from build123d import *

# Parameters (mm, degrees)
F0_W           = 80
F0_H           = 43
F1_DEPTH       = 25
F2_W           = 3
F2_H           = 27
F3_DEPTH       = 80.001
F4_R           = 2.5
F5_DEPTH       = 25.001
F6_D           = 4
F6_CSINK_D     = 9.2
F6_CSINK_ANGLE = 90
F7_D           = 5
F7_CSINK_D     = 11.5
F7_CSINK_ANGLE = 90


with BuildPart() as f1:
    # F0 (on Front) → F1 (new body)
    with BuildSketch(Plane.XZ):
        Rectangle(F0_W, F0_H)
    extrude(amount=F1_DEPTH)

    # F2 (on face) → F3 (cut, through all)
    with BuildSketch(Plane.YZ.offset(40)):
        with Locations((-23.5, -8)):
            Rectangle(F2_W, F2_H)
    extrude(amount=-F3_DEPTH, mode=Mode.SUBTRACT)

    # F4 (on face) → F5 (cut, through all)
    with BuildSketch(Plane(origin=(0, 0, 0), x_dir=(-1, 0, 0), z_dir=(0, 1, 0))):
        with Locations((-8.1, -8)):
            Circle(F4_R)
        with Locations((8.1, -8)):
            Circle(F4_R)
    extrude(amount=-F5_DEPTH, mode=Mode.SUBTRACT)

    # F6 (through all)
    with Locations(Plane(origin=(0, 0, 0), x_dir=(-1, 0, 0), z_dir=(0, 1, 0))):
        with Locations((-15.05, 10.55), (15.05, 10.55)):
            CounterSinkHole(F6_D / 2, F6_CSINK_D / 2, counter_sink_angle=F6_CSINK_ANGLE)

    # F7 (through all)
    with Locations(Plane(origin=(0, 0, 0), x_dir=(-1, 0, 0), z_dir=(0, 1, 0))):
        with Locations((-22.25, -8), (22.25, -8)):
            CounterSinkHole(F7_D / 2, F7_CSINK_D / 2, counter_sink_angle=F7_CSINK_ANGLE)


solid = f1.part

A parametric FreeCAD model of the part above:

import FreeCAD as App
import Part
import Sketcher
Q = App.Units.Quantity

doc = App.newDocument("Part")
params = doc.addObject("Spreadsheet::Sheet", "Params")
for row, (alias, value) in enumerate([
    ("sketch1_width", "80 mm"),
    ("sketch1_height", "43 mm"),
    ("pad1_length", "25 mm"),
    ("sketch2_width", "3 mm"),
    ("sketch2_height", "27 mm"),
    ("sketch3_diameter", "5 mm"),
    ("sketch4_diameter", "4 mm"),
    ("hole_diameter", "4 mm"),
    ("hole_csink_diameter", "9.2 mm"),
    ("sketch5_diameter", "5 mm"),
    ("hole2_diameter", "5 mm"),
    ("hole2_csink_diameter", "11.5 mm"),
], start=1):
    params.set(f"A{row}", alias)
    params.set(f"B{row}", "=" + value)
    params.setAlias(f"B{row}", alias)

body = doc.addObject("PartDesign::Body", "Body")

sketch1 = body.newObject("Sketcher::SketchObject", "Sketch")
sketch1.AttachmentSupport = (doc.getObject("XZ_Plane"), [""])
sketch1.MapMode = "FlatFace"
sketch1.addGeometry([
    Part.LineSegment(App.Vector(-40, 21.5, 0), App.Vector(-40, -21.5, 0)),
    Part.LineSegment(App.Vector(-40, -21.5, 0), App.Vector(40, -21.5, 0)),
    Part.LineSegment(App.Vector(40, -21.5, 0), App.Vector(40, 21.5, 0)),
    Part.LineSegment(App.Vector(40, 21.5, 0), App.Vector(-40, 21.5, 0)),
], False)
sketch1.addConstraint([
    Sketcher.Constraint("Coincident", 0, 2, 1, 1),
    Sketcher.Constraint("Coincident", 1, 2, 2, 1),
    Sketcher.Constraint("Coincident", 2, 2, 3, 1),
    Sketcher.Constraint("Coincident", 3, 2, 0, 1),
    Sketcher.Constraint("Vertical", 0),
    Sketcher.Constraint("Horizontal", 1),
    Sketcher.Constraint("Vertical", 2),
    Sketcher.Constraint("Horizontal", 3),
    Sketcher.Constraint("Symmetric", 0, 2, 2, 2, -1, 1),
    Sketcher.Constraint("DistanceX", 1, 1, 1, 2, Q("80 mm")),
    Sketcher.Constraint("DistanceY", 0, 2, 0, 1, Q("43 mm")),
])
sketch1.setExpression("Constraints[9]", "Params.sketch1_width")
sketch1.setExpression("Constraints[10]", "Params.sketch1_height")
pad1 = body.newObject("PartDesign::Pad", "Pad")
pad1.Profile = sketch1
pad1.setExpression("Length", "Params.pad1_length")

sketch2 = body.newObject("Sketcher::SketchObject", "Sketch001")
sketch2.AttachmentSupport = (doc.getObject("YZ_Plane"), [""])
sketch2.MapMode = "FlatFace"
sketch2.AttachmentOffset = App.Placement(App.Vector(0, 0, 40), App.Rotation())
sketch2.addGeometry([
    Part.LineSegment(App.Vector(-25, 5.5, 0), App.Vector(-25, -21.5, 0)),
    Part.LineSegment(App.Vector(-25, -21.5, 0), App.Vector(-22, -21.5, 0)),
    Part.LineSegment(App.Vector(-22, -21.5, 0), App.Vector(-22, 5.5, 0)),
    Part.LineSegment(App.Vector(-22, 5.5, 0), App.Vector(-25, 5.5, 0)),
], False)
sketch2.addConstraint([
    Sketcher.Constraint("Coincident", 0, 2, 1, 1),
    Sketcher.Constraint("Coincident", 1, 2, 2, 1),
    Sketcher.Constraint("Coincident", 2, 2, 3, 1),
    Sketcher.Constraint("Coincident", 3, 2, 0, 1),
    Sketcher.Constraint("Vertical", 0),
    Sketcher.Constraint("Horizontal", 1),
    Sketcher.Constraint("Vertical", 2),
    Sketcher.Constraint("Horizontal", 3),
    Sketcher.Constraint("DistanceX", 1, 1, 1, 2, Q("3 mm")),
    Sketcher.Constraint("DistanceY", 0, 2, 0, 1, Q("27 mm")),
    Sketcher.Constraint("DistanceX", 0, 2, -1, 1, Q("25 mm")),
    Sketcher.Constraint("DistanceY", 0, 2, -1, 1, Q("21.5 mm")),
])
sketch2.setExpression("Constraints[8]", "Params.sketch2_width")
sketch2.setExpression("Constraints[9]", "Params.sketch2_height")
pocket1 = body.newObject("PartDesign::Pocket", "Pocket")
pocket1.Profile = sketch2
pocket1.Type = "ThroughAll"

sketch3 = body.newObject("Sketcher::SketchObject", "Sketch002")
sketch3.AttachmentSupport = (doc.getObject("XZ_Plane"), [""])
sketch3.MapMode = "FlatFace"
sketch3.addGeometry([
    Part.Circle(App.Vector(8.1, -8, 0), App.Vector(0, 0, 1), 2.5),
    Part.Circle(App.Vector(-8.1, -8, 0), App.Vector(0, 0, 1), 2.5),
], False)
sketch3.addConstraint([
    Sketcher.Constraint("Equal", 0, 1),
    Sketcher.Constraint("Symmetric", 0, 3, 1, 3, -2),
    Sketcher.Constraint("Diameter", 0, Q("5 mm")),
    Sketcher.Constraint("DistanceY", 0, 3, -1, 1, Q("8 mm")),
    Sketcher.Constraint("DistanceX", -1, 1, 0, 3, Q("8.1 mm")),
])
sketch3.setExpression("Constraints[2]", "Params.sketch3_diameter")
pocket2 = body.newObject("PartDesign::Pocket", "Pocket001")
pocket2.Profile = sketch3
pocket2.Type = "ThroughAll"
pocket2.Reversed = True

sketch4 = body.newObject("Sketcher::SketchObject", "Sketch003")
sketch4.AttachmentSupport = (doc.getObject("XZ_Plane"), [""])
sketch4.MapMode = "FlatFace"
sketch4.addGeometry([
    Part.Circle(App.Vector(15.05, 10.55, 0), App.Vector(0, 0, 1), 2),
    Part.Circle(App.Vector(-15.05, 10.55, 0), App.Vector(0, 0, 1), 2),
], False)
sketch4.addConstraint([
    Sketcher.Constraint("Equal", 0, 1),
    Sketcher.Constraint("Symmetric", 0, 3, 1, 3, -2),
    Sketcher.Constraint("Diameter", 0, Q("4 mm")),
    Sketcher.Constraint("DistanceX", 1, 3, 0, 3, Q("30.1 mm")),
    Sketcher.Constraint("DistanceY", -1, 1, 0, 3, Q("10.55 mm")),
])
sketch4.setExpression("Constraints[2]", "Params.sketch4_diameter")
doc.recompute()
hole = body.newObject("PartDesign::Hole", "Hole")
hole.Profile = sketch4
hole.ThreadType = "None"
hole.setExpression("Diameter", "Params.hole_diameter")
hole.DepthType = "ThroughAll"
hole.HoleCutType = "Countersink"
hole.setExpression("HoleCutDiameter", "Params.hole_csink_diameter")
hole.HoleCutCountersinkAngle = 90
hole.Reversed = True

sketch5 = body.newObject("Sketcher::SketchObject", "Sketch004")
sketch5.AttachmentSupport = (doc.getObject("XZ_Plane"), [""])
sketch5.MapMode = "FlatFace"
sketch5.addGeometry([
    Part.Circle(App.Vector(22.25, -8, 0), App.Vector(0, 0, 1), 2.5),
    Part.Circle(App.Vector(-22.25, -8, 0), App.Vector(0, 0, 1), 2.5),
], False)
sketch5.addConstraint([
    Sketcher.Constraint("Equal", 0, 1),
    Sketcher.Constraint("Symmetric", 0, 3, 1, 3, -2),
    Sketcher.Constraint("Diameter", 0, Q("5 mm")),
    Sketcher.Constraint("DistanceY", 0, 3, -1, 1, Q("8 mm")),
    Sketcher.Constraint("DistanceX", 1, 3, 0, 3, Q("44.5 mm")),
])
sketch5.setExpression("Constraints[2]", "Params.sketch5_diameter")
doc.recompute()
hole2 = body.newObject("PartDesign::Hole", "Hole001")
hole2.Profile = sketch5
hole2.ThreadType = "None"
hole2.setExpression("Diameter", "Params.hole2_diameter")
hole2.DepthType = "ThroughAll"
hole2.HoleCutType = "Countersink"
hole2.setExpression("HoleCutDiameter", "Params.hole2_csink_diameter")
hole2.HoleCutCountersinkAngle = 90
hole2.Reversed = True

doc.recompute()
